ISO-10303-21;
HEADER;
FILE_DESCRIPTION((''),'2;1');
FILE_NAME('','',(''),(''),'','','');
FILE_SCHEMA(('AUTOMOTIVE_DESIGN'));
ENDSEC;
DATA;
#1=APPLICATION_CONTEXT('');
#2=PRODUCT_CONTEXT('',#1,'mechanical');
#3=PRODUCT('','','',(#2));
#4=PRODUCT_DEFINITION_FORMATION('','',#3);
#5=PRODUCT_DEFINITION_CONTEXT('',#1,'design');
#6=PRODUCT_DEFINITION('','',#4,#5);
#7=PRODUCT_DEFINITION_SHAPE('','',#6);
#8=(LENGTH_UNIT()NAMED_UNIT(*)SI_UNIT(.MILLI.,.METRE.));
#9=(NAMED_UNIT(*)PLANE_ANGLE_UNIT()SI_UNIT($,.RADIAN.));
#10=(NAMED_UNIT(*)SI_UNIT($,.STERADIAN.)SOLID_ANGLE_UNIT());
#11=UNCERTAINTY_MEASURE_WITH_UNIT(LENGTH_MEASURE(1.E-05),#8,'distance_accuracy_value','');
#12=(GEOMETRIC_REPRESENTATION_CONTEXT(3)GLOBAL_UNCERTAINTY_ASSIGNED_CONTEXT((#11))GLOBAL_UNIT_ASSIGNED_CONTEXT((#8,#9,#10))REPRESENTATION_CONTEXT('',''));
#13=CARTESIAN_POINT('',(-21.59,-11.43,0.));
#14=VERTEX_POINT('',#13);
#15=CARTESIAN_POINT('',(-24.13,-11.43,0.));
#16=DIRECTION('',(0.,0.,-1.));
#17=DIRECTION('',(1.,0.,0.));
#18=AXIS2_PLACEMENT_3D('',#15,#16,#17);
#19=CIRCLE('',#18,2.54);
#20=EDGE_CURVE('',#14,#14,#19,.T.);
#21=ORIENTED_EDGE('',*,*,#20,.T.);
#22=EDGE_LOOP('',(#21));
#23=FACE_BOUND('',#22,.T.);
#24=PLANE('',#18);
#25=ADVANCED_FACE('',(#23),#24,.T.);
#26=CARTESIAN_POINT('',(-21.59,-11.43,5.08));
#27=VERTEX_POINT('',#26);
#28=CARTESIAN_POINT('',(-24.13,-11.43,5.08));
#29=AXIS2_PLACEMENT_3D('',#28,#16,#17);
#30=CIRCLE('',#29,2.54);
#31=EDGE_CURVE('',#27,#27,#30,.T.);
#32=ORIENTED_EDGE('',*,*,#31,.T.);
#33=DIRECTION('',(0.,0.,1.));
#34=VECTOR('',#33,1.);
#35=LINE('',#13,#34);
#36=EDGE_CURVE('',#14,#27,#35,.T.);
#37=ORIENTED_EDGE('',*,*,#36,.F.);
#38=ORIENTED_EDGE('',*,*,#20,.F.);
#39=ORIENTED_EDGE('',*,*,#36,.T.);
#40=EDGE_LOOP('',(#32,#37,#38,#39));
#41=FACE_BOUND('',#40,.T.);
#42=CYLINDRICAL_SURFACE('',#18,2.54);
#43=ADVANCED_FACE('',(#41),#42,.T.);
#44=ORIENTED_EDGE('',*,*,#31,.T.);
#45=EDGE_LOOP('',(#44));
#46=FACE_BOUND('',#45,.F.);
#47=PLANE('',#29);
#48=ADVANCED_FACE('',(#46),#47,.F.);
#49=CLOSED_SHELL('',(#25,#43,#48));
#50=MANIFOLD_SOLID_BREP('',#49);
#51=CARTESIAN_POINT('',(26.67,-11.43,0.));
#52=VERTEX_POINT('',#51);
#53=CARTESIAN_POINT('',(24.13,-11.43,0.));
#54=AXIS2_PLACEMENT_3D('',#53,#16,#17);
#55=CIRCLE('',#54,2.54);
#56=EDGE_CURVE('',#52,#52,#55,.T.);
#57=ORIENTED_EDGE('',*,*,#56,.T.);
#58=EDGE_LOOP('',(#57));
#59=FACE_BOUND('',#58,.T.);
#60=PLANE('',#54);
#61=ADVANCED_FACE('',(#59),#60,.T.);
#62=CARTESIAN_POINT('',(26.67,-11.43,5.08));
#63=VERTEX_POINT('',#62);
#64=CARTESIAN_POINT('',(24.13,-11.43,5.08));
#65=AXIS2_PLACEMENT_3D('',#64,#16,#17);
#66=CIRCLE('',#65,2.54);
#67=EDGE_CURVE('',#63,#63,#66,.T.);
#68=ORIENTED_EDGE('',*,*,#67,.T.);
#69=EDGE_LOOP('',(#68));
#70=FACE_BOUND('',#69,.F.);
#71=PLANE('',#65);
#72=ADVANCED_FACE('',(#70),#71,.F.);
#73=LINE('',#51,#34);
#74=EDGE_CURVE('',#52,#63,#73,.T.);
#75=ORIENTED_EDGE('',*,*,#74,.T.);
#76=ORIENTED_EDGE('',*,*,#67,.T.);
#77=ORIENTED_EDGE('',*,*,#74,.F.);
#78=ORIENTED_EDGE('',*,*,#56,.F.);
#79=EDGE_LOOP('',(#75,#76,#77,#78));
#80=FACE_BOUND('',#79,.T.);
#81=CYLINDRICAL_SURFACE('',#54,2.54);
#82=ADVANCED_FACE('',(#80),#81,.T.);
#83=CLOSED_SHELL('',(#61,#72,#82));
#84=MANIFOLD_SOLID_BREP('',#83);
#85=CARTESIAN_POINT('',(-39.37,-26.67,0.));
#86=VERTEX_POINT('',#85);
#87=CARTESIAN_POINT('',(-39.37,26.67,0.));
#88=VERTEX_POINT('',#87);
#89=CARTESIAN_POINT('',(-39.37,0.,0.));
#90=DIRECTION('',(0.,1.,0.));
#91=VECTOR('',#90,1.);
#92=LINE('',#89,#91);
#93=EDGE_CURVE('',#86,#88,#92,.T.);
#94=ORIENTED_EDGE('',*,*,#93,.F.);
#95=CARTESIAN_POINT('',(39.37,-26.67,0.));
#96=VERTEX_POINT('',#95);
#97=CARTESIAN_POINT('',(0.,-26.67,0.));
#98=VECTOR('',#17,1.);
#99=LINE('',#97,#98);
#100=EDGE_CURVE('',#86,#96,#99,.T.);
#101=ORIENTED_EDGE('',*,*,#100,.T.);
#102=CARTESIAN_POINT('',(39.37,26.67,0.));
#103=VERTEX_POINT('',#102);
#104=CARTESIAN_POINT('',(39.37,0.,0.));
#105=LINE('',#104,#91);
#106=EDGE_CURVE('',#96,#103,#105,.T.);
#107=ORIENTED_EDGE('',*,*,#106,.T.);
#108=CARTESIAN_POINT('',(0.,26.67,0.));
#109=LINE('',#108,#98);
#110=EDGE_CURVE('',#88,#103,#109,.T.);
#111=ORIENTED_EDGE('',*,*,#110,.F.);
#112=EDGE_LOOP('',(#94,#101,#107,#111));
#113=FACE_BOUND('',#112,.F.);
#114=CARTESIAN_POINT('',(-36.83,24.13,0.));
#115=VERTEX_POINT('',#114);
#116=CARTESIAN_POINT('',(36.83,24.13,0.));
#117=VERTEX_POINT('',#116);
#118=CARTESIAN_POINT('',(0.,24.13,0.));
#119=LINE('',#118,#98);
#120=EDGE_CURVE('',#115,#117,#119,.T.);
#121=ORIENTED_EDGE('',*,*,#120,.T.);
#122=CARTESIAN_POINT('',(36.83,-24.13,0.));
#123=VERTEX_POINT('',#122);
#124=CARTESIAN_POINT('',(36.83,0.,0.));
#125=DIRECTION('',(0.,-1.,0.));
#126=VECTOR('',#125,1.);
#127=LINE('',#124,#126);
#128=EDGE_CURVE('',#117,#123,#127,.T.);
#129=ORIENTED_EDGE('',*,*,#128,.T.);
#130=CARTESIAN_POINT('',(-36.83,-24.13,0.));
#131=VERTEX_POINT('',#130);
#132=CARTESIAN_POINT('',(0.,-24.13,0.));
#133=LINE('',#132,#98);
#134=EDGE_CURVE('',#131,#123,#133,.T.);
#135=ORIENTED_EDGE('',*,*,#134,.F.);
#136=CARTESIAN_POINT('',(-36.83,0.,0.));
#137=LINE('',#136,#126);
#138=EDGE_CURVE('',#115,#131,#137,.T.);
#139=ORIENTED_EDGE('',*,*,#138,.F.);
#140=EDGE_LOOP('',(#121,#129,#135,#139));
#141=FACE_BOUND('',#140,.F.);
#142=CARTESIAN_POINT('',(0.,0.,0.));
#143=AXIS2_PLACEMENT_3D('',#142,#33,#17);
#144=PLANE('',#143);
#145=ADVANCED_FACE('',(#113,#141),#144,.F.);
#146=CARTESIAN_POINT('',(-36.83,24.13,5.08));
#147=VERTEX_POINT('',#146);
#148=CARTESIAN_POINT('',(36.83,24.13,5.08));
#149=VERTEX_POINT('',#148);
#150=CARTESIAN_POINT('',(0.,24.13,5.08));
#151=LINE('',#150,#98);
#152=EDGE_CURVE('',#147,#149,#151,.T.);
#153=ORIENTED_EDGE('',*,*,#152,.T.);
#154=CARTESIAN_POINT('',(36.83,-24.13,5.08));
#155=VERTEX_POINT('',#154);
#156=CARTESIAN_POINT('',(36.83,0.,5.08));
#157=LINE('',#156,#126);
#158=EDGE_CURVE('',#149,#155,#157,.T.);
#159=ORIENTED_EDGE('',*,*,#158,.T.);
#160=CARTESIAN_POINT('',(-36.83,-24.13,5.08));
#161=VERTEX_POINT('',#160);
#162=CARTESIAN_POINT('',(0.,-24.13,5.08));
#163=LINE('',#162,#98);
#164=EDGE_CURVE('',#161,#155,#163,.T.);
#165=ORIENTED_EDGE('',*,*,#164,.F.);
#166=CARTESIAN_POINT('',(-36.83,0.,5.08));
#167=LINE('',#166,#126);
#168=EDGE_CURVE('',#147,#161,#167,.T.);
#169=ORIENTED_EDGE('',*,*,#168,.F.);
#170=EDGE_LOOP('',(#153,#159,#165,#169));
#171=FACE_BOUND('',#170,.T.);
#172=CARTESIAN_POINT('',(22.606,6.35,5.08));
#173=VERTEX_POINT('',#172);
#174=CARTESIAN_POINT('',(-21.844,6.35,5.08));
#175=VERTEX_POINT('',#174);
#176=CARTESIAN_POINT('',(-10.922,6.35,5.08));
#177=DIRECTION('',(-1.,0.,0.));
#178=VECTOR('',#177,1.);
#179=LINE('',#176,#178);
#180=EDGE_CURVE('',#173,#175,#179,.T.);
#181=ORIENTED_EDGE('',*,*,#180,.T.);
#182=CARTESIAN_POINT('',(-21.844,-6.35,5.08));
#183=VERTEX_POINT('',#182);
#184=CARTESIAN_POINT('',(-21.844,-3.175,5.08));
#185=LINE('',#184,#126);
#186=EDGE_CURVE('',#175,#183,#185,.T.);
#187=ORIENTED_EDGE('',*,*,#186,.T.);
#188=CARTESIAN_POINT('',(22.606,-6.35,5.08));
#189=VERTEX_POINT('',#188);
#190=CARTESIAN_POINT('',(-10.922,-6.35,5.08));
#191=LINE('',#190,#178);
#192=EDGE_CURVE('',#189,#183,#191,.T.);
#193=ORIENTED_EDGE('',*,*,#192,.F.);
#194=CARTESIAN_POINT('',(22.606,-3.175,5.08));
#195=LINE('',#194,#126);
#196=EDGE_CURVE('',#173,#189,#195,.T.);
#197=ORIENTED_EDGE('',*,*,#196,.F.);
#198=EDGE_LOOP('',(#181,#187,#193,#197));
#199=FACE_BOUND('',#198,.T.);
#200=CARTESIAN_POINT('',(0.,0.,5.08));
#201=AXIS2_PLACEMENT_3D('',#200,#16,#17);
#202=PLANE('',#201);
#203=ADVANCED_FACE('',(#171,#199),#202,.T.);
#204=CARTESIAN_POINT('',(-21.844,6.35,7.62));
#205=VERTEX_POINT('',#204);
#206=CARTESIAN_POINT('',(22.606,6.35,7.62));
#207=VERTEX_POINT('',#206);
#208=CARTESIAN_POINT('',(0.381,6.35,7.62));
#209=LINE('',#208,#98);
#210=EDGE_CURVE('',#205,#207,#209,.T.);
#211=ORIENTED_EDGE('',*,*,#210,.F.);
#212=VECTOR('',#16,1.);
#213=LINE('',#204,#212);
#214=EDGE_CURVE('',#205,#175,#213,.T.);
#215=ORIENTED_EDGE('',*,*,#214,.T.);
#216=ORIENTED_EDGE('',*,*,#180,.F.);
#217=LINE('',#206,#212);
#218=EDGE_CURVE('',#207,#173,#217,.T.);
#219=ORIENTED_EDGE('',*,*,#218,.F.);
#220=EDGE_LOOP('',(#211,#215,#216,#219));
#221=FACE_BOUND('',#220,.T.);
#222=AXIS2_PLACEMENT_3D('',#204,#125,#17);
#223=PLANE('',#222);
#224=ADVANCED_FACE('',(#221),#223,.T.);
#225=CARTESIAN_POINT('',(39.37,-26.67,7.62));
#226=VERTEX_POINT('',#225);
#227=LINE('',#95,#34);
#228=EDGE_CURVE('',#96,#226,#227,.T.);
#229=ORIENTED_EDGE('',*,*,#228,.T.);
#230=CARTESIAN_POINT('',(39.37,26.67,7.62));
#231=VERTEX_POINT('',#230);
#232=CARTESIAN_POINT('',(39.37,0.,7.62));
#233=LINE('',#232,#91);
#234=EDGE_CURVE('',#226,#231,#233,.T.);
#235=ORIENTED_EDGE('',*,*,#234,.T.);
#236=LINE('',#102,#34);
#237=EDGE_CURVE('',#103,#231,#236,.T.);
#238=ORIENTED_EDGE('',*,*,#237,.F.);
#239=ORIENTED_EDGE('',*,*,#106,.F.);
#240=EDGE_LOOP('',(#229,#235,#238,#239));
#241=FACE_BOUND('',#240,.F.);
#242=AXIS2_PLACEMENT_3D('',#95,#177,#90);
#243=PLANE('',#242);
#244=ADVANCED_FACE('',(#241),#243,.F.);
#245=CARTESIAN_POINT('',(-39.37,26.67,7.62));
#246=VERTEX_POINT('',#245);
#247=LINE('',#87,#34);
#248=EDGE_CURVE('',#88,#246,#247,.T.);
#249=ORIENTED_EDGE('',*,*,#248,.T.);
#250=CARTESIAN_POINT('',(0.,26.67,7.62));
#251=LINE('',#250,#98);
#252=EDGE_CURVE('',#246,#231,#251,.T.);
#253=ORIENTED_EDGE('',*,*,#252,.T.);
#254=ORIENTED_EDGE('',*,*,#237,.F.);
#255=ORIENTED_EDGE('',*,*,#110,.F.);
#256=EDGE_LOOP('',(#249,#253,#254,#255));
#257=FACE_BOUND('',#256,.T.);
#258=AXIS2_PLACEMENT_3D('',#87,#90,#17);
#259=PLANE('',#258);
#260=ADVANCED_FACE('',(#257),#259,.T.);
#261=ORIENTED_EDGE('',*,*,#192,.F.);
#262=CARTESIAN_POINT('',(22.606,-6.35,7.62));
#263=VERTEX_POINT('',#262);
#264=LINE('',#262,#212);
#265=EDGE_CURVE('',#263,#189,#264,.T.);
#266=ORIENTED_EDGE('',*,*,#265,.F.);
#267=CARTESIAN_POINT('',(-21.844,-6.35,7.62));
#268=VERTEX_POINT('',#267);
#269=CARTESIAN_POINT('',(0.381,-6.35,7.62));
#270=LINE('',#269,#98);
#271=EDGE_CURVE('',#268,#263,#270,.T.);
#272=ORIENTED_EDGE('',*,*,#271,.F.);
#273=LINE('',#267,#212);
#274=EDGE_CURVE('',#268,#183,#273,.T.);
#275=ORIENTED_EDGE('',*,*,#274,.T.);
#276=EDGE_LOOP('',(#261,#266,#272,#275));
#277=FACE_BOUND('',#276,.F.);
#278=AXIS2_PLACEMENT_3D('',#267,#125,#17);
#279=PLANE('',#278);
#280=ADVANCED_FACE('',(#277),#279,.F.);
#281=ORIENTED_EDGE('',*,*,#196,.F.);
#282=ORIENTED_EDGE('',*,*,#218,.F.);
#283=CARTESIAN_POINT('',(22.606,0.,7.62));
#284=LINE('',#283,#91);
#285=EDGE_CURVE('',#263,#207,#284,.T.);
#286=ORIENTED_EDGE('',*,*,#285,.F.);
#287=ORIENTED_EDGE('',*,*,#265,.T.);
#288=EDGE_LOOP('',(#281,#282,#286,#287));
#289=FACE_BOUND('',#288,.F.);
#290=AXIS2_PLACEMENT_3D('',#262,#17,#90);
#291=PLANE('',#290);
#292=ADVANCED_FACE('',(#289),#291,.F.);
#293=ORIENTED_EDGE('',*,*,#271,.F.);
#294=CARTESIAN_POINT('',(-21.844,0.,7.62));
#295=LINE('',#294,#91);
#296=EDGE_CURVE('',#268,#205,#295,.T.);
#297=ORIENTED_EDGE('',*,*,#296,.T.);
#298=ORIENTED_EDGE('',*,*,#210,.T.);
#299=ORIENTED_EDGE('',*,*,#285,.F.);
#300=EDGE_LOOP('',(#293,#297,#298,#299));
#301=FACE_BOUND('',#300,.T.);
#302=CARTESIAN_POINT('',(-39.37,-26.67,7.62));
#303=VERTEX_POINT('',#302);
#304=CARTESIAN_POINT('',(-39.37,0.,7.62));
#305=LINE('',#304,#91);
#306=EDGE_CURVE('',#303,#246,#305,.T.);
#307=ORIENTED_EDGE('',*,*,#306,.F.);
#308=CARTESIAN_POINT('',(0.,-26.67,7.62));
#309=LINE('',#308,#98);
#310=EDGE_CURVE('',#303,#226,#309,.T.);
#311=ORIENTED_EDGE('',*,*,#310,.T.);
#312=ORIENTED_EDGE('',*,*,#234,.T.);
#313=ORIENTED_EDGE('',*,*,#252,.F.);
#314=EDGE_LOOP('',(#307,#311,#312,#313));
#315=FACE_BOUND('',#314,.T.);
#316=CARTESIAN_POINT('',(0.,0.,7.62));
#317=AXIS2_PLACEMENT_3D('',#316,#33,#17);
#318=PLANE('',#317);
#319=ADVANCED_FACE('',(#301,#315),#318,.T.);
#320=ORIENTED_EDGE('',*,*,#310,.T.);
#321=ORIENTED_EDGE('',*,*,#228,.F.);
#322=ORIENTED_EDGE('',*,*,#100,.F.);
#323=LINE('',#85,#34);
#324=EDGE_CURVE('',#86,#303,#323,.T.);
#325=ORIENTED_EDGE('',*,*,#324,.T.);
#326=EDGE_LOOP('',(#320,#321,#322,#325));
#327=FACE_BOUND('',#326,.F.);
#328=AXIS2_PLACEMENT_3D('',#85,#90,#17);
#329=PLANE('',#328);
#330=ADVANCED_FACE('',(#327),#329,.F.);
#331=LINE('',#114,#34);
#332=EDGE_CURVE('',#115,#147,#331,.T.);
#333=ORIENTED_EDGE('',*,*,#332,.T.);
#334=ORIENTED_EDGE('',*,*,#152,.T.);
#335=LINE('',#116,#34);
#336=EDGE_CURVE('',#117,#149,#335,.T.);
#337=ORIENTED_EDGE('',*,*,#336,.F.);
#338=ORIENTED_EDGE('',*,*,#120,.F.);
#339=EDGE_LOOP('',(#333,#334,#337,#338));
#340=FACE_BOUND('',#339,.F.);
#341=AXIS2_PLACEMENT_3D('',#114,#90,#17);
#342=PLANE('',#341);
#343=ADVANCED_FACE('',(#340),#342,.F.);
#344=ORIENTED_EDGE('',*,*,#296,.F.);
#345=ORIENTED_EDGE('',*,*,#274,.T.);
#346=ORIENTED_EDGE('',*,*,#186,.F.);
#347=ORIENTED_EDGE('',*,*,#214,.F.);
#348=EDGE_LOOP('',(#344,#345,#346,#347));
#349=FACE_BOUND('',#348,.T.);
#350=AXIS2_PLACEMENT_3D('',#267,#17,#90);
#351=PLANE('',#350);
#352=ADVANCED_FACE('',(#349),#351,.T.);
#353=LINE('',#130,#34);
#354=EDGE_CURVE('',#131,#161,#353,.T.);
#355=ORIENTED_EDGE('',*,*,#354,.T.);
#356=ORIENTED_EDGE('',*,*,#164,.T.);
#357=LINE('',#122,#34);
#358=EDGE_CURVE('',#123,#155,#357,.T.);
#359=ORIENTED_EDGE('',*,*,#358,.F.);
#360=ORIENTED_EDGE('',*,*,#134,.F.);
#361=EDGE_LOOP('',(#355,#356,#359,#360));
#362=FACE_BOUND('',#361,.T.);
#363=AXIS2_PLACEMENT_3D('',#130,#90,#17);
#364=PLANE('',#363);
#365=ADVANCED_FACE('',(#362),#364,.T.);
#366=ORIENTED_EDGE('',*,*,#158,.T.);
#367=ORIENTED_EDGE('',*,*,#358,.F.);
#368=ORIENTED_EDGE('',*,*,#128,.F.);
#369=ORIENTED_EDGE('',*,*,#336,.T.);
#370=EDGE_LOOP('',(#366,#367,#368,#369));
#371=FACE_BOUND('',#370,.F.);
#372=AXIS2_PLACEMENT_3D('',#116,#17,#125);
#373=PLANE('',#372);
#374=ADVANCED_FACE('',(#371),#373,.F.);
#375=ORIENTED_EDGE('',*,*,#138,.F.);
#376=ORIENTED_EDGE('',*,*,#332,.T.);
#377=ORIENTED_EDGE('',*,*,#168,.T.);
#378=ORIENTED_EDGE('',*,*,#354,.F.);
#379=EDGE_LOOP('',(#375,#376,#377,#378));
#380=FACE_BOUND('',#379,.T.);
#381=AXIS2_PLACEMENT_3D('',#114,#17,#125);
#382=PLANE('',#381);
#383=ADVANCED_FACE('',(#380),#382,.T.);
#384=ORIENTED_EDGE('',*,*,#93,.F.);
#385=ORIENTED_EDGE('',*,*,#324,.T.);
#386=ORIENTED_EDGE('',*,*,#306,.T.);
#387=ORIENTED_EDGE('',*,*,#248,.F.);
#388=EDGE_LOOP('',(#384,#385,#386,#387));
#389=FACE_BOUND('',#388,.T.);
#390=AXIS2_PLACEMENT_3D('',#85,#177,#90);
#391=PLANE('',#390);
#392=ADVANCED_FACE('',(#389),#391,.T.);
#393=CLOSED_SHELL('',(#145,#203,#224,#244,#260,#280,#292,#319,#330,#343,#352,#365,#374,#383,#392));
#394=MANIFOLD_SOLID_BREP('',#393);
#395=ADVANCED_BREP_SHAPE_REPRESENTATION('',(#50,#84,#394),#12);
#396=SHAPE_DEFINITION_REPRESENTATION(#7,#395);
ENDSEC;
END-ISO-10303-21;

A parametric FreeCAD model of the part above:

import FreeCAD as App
import Part
import Sketcher
Q = App.Units.Quantity

doc = App.newDocument("Part")
body = doc.addObject("PartDesign::Body", "Body")

sketch1 = body.newObject("Sketcher::SketchObject", "Sketch")
sketch1.AttachmentSupport = (doc.getObject("XY_Plane"), [""])
sketch1.MapMode = "FlatFace"
sketch1.addGeometry([
    Part.LineSegment(App.Vector(-39, 27, 0), App.Vector(-39, -27, 0)),
    Part.LineSegment(App.Vector(-39, -27, 0), App.Vector(39, -27, 0)),
    Part.LineSegment(App.Vector(39, -27, 0), App.Vector(39, 27, 0)),
    Part.LineSegment(App.Vector(39, 27, 0), App.Vector(-39, 27, 0)),
], False)
sketch1.addConstraint([
    Sketcher.Constraint("Coincident", 0, 2, 1, 1),
    Sketcher.Constraint("Coincident", 1, 2, 2, 1),
    Sketcher.Constraint("Coincident", 2, 2, 3, 1),
    Sketcher.Constraint("Coincident", 3, 2, 0, 1),
    Sketcher.Constraint("Vertical", 0),
    Sketcher.Constraint("Horizontal", 1),
    Sketcher.Constraint("Vertical", 2),
    Sketcher.Constraint("Horizontal", 3),
    Sketcher.Constraint("Symmetric", 0, 2, 2, 2, -1, 1),
    Sketcher.Constraint("DistanceX", 1, 1, 1, 2, Q("3.1 in")),
    Sketcher.Constraint("DistanceY", 0, 2, 0, 1, Q("2.1 in")),
])
pad1 = body.newObject("PartDesign::Pad", "Pad")
pad1.Profile = sketch1
pad1.Length = Q("0.3 in")

sketch2 = body.newObject("Sketcher::SketchObject", "Sketch001")
sketch2.AttachmentSupport = (doc.getObject("XY_Plane"), [""])
sketch2.MapMode = "FlatFace"
sketch2.addGeometry([
    Part.LineSegment(App.Vector(-37, -24, 0), App.Vector(-37, 24, 0)),
    Part.LineSegment(App.Vector(-37, 24, 0), App.Vector(37, 24, 0)),
    Part.LineSegment(App.Vector(37, 24, 0), App.Vector(37, -24, 0)),
    Part.LineSegment(App.Vector(37, -24, 0), App.Vector(-37, -24, 0)),
], False)
sketch2.addConstraint([
    Sketcher.Constraint("Coincident", 0, 2, 1, 1),
    Sketcher.Constraint("Coincident", 1, 2, 2, 1),
    Sketcher.Constraint("Coincident", 2, 2, 3, 1),
    Sketcher.Constraint("Coincident", 3, 2, 0, 1),
    Sketcher.Constraint("Vertical", 0),
    Sketcher.Constraint("Horizontal", 1),
    Sketcher.Constraint("Vertical", 2),
    Sketcher.Constraint("Horizontal", 3),
    Sketcher.Constraint("Symmetric", 0, 2, 2, 2, -1, 1),
    Sketcher.Constraint("DistanceX", 1, 1, 1, 2, Q("2.9 in")),
    Sketcher.Constraint("DistanceY", 0, 1, 0, 2, Q("1.9 in")),
])
pocket1 = body.newObject("PartDesign::Pocket", "Pocket")
pocket1.Profile = sketch2
pocket1.Length = Q("0.2 in")
pocket1.Reversed = True

sketch3 = body.newObject("Sketcher::SketchObject", "Sketch002")
sketch3.AttachmentSupport = (doc.getObject("XY_Plane"), [""])
sketch3.MapMode = "FlatFace"
sketch3.AttachmentOffset = App.Placement(App.Vector(0, 0, 0.3 * 25.4), App.Rotation())
sketch3.addGeometry([
    Part.LineSegment(App.Vector(-22, 6, 0), App.Vector(-22, -6, 0)),
    Part.LineSegment(App.Vector(-22, -6, 0), App.Vector(23, -6, 0)),
    Part.LineSegment(App.Vector(23, -6, 0), App.Vector(23, 6, 0)),
    Part.LineSegment(App.Vector(23, 6, 0), App.Vector(-22, 6, 0)),
], False)
sketch3.addConstraint([
    Sketcher.Constraint("Coincident", 0, 2, 1, 1),
    Sketcher.Constraint("Coincident", 1, 2, 2, 1),
    Sketcher.Constraint("Coincident", 2, 2, 3, 1),
    Sketcher.Constraint("Coincident", 3, 2, 0, 1),
    Sketcher.Constraint("Vertical", 0),
    Sketcher.Constraint("Horizontal", 1),
    Sketcher.Constraint("Vertical", 2),
    Sketcher.Constraint("Horizontal", 3),
    Sketcher.Constraint("DistanceY", 0, 2, 0, 1, Q("0.5 in")),
    Sketcher.Constraint("DistanceX", 1, 1, 1, 2, Q("1.75 in")),
    Sketcher.Constraint("DistanceX", 0, 2, -1, 1, Q("0.86 in")),
    Sketcher.Constraint("DistanceY", 0, 2, -1, 1, Q("0.25 in")),
])
pocket2 = body.newObject("PartDesign::Pocket", "Pocket001")
pocket2.Profile = sketch3
pocket2.Length = Q("1 in")
body2 = doc.addObject("PartDesign::Body", "Body001")
body2.AllowCompound = True

sketch4 = body2.newObject("Sketcher::SketchObject", "Sketch003")
sketch4.AttachmentSupport = (doc.getObject("XY_Plane001"), [""])
sketch4.MapMode = "FlatFace"
sketch4.addGeometry([
    Part.Circle(App.Vector(24.1, -11.4, 0), App.Vector(0, 0, 1), 2.5),
    Part.Circle(App.Vector(-24.1, -11.4, 0), App.Vector(0, 0, 1), 2.5),
], False)
sketch4.addConstraint([
    Sketcher.Constraint("Equal", 0, 1),
    Sketcher.Constraint("Symmetric", 0, 3, 1, 3, -2),
    Sketcher.Constraint("Diameter", 0, Q("0.2 in")),
    Sketcher.Constraint("DistanceX", 1, 3, 0, 3, Q("1.9 in")),
    Sketcher.Constraint("DistanceY", 0, 3, -1, 1, Q("0.45 in")),
])
pad2 = body2.newObject("PartDesign::Pad", "Pad001")
pad2.Profile = sketch4
pad2.Length = Q("0.2 in")

doc.recompute()
